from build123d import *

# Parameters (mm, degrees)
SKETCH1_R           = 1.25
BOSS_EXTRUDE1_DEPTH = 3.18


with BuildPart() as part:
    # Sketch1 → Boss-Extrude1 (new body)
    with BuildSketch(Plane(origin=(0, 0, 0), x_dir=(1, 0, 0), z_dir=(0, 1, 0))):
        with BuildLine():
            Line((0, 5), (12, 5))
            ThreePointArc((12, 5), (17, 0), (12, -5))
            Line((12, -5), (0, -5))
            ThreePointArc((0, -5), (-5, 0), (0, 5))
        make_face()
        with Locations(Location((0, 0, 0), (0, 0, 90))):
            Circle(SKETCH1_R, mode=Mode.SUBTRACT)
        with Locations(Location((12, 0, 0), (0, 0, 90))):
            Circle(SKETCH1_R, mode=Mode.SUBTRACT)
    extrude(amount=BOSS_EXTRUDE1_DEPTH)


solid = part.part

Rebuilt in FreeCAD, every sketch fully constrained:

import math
import FreeCAD as App
import Part
import Sketcher

V = App.Vector

doc = App.newDocument("Part")
body = doc.addObject("PartDesign::Body", "Body")

sketch1 = doc.addObject("Sketcher::SketchObject", "Sketch")
body.addObject(sketch1)
sketch1.AttachmentSupport = (doc.XZ_Plane, [""])
sketch1.MapMode = "FlatFace"
sketch1.addGeometry(Part.LineSegment(V(12, -5, 0), V(0, -5, 0)), False)
sketch1.addGeometry(Part.ArcOfCircle(Part.Circle(V(0, 0, 0), V(0, 0, 1), 5), math.radians(90), math.radians(270)), False)
sketch1.addGeometry(Part.LineSegment(V(0, 5, 0), V(12, 5, 0)), False)
sketch1.addGeometry(Part.ArcOfCircle(Part.Circle(V(12, 0, 0), V(0, 0, 1), 5), math.radians(-90), math.radians(90)), False)
sketch1.addGeometry(Part.Circle(V(12, 0, 0), V(0, 0, 1), 1.25), False)
sketch1.addGeometry(Part.Circle(V(0, 0, 0), V(0, 0, 1), 1.25), False)
sketch1.addConstraint(Sketcher.Constraint("Tangent", 0, 2, 1, 2))
sketch1.addConstraint(Sketcher.Constraint("Tangent", 1, 1, 2, 1))
sketch1.addConstraint(Sketcher.Constraint("Tangent", 2, 2, 3, 2))
sketch1.addConstraint(Sketcher.Constraint("Tangent", 3, 1, 0, 1))
sketch1.addConstraint(Sketcher.Constraint("Horizontal", 0))
sketch1.addConstraint(Sketcher.Constraint("Horizontal", 2))
sketch1.addConstraint(Sketcher.Constraint("Coincident", 1, 3, -1, 1))
sketch1.addConstraint(Sketcher.Constraint("Coincident", 5, 3, -1, 1))
sketch1.addConstraint(Sketcher.Constraint("Coincident", 4, 3, 3, 3))
sketch1.addConstraint(Sketcher.Constraint("Equal", 4, 5))
sketch1.addConstraint(Sketcher.Constraint("Radius", 1, 5.0))
sketch1.addConstraint(Sketcher.Constraint("Diameter", 4, 2.5))
sketch1.addConstraint(Sketcher.Constraint("DistanceX", 0, 2, 0, 1, 12.0))
pad1 = doc.addObject("PartDesign::Pad", "Pad")
body.addObject(pad1)
pad1.Profile = sketch1
pad1.Length = 3.18
pad1.Reversed = True

doc.recompute()
